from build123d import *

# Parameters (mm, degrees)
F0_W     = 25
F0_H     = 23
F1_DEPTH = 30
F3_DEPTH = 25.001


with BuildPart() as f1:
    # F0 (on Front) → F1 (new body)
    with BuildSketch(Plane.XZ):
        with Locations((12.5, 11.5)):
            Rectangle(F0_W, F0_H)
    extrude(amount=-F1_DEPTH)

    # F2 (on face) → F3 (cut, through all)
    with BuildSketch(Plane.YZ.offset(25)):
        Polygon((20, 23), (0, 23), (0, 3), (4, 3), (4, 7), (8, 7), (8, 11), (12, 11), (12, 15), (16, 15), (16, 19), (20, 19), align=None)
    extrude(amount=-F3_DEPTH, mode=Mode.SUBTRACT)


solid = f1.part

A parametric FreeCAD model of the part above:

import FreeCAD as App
import Part
import Sketcher

V = App.Vector
Q = App.Units.Quantity


def add_polygon(sketch, points):
    """Adds a closed chain of lines whose ends are joined by coincident constraints."""
    first, n = sketch.GeometryCount, len(points)
    for a, b in zip(points, points[1:] + points[:1]):
        sketch.addGeometry(Part.LineSegment(App.Vector(*a, 0), App.Vector(*b, 0)), False)
    for i in range(n):
        sketch.addConstraint(Sketcher.Constraint("Coincident", first + i, 2, first + (i + 1) % n, 1))

doc = App.newDocument("Part")
body = doc.addObject("PartDesign::Body", "Body")

# Sketch on XZ plane
sketch1 = body.newObject("Sketcher::SketchObject", "Sketch")
sketch1.AttachmentSupport = (doc.getObject("XZ_Plane"), [""])
sketch1.MapMode = "FlatFace"
add_polygon(sketch1, [(0, 23), (0, 0), (25, 0), (25, 23)])  # lines 0-3
sketch1.addConstraint(Sketcher.Constraint("Vertical", 0))
sketch1.addConstraint(Sketcher.Constraint("Horizontal", 1))
sketch1.addConstraint(Sketcher.Constraint("Vertical", 2))
sketch1.addConstraint(Sketcher.Constraint("Horizontal", 3))
sketch1.addConstraint(Sketcher.Constraint("Coincident", 0, 2, -1, 1))
sketch1.addConstraint(Sketcher.Constraint("DistanceX", 1, 1, 1, 2, Q("25 mm")))
sketch1.addConstraint(Sketcher.Constraint("DistanceY", 0, 2, 0, 1, Q("23 mm")))
pad1 = body.newObject("PartDesign::Pad", "Pad")
pad1.Profile = sketch1
pad1.Length = 30
pad1.Reversed = True

# Sketch on YZ plane
sketch2 = body.newObject("Sketcher::SketchObject", "Sketch001")
sketch2.AttachmentSupport = (doc.getObject("YZ_Plane"), [""])
sketch2.MapMode = "FlatFace"
sketch2.AttachmentOffset = App.Placement(V(0, 0, 25), App.Rotation())
add_polygon(sketch2, [(20, 23), (0, 23), (0, 3), (4, 3), (4, 7), (8, 7), (8, 11), (12, 11), (12, 15), (16, 15), (16, 19), (20, 19)])  # lines 0-11
sketch2.addConstraint(Sketcher.Constraint("Horizontal", 0))
sketch2.addConstraint(Sketcher.Constraint("Vertical", 1))
sketch2.addConstraint(Sketcher.Constraint("Horizontal", 2))
sketch2.addConstraint(Sketcher.Constraint("Vertical", 3))
sketch2.addConstraint(Sketcher.Constraint("Horizontal", 4))
sketch2.addConstraint(Sketcher.Constraint("Vertical", 5))
sketch2.addConstraint(Sketcher.Constraint("Horizontal", 6))
sketch2.addConstraint(Sketcher.Constraint("Vertical", 7))
sketch2.addConstraint(Sketcher.Constraint("Horizontal", 8))
sketch2.addConstraint(Sketcher.Constraint("Vertical", 9))
sketch2.addConstraint(Sketcher.Constraint("Horizontal", 10))
sketch2.addConstraint(Sketcher.Constraint("Vertical", 11))
sketch2.addConstraint(Sketcher.Constraint("PointOnObject", 0, 2, -2))
sketch2.addConstraint(Sketcher.Constraint("Equal", 2, 4))
sketch2.addConstraint(Sketcher.Constraint("Equal", 4, 6))
sketch2.addConstraint(Sketcher.Constraint("Equal", 6, 8))
sketch2.addConstraint(Sketcher.Constraint("Equal", 8, 10))
sketch2.addConstraint(Sketcher.Constraint("Equal", 0, 1))
sketch2.addConstraint(Sketcher.Constraint("Equal", 10, 3))
sketch2.addConstraint(Sketcher.Constraint("Equal", 3, 5))
sketch2.addConstraint(Sketcher.Constraint("Equal", 5, 7))
sketch2.addConstraint(Sketcher.Constraint("Equal", 7, 9))
sketch2.addConstraint(Sketcher.Constraint("DistanceX", 0, 2, 0, 1, Q("20 mm")))
sketch2.addConstraint(Sketcher.Constraint("DistanceY", -1, 1, 0, 2, Q("23 mm")))
pocket1 = body.newObject("PartDesign::Pocket", "Pocket")
pocket1.Profile = sketch2
pocket1.Type = "ThroughAll"

doc.recompute()
